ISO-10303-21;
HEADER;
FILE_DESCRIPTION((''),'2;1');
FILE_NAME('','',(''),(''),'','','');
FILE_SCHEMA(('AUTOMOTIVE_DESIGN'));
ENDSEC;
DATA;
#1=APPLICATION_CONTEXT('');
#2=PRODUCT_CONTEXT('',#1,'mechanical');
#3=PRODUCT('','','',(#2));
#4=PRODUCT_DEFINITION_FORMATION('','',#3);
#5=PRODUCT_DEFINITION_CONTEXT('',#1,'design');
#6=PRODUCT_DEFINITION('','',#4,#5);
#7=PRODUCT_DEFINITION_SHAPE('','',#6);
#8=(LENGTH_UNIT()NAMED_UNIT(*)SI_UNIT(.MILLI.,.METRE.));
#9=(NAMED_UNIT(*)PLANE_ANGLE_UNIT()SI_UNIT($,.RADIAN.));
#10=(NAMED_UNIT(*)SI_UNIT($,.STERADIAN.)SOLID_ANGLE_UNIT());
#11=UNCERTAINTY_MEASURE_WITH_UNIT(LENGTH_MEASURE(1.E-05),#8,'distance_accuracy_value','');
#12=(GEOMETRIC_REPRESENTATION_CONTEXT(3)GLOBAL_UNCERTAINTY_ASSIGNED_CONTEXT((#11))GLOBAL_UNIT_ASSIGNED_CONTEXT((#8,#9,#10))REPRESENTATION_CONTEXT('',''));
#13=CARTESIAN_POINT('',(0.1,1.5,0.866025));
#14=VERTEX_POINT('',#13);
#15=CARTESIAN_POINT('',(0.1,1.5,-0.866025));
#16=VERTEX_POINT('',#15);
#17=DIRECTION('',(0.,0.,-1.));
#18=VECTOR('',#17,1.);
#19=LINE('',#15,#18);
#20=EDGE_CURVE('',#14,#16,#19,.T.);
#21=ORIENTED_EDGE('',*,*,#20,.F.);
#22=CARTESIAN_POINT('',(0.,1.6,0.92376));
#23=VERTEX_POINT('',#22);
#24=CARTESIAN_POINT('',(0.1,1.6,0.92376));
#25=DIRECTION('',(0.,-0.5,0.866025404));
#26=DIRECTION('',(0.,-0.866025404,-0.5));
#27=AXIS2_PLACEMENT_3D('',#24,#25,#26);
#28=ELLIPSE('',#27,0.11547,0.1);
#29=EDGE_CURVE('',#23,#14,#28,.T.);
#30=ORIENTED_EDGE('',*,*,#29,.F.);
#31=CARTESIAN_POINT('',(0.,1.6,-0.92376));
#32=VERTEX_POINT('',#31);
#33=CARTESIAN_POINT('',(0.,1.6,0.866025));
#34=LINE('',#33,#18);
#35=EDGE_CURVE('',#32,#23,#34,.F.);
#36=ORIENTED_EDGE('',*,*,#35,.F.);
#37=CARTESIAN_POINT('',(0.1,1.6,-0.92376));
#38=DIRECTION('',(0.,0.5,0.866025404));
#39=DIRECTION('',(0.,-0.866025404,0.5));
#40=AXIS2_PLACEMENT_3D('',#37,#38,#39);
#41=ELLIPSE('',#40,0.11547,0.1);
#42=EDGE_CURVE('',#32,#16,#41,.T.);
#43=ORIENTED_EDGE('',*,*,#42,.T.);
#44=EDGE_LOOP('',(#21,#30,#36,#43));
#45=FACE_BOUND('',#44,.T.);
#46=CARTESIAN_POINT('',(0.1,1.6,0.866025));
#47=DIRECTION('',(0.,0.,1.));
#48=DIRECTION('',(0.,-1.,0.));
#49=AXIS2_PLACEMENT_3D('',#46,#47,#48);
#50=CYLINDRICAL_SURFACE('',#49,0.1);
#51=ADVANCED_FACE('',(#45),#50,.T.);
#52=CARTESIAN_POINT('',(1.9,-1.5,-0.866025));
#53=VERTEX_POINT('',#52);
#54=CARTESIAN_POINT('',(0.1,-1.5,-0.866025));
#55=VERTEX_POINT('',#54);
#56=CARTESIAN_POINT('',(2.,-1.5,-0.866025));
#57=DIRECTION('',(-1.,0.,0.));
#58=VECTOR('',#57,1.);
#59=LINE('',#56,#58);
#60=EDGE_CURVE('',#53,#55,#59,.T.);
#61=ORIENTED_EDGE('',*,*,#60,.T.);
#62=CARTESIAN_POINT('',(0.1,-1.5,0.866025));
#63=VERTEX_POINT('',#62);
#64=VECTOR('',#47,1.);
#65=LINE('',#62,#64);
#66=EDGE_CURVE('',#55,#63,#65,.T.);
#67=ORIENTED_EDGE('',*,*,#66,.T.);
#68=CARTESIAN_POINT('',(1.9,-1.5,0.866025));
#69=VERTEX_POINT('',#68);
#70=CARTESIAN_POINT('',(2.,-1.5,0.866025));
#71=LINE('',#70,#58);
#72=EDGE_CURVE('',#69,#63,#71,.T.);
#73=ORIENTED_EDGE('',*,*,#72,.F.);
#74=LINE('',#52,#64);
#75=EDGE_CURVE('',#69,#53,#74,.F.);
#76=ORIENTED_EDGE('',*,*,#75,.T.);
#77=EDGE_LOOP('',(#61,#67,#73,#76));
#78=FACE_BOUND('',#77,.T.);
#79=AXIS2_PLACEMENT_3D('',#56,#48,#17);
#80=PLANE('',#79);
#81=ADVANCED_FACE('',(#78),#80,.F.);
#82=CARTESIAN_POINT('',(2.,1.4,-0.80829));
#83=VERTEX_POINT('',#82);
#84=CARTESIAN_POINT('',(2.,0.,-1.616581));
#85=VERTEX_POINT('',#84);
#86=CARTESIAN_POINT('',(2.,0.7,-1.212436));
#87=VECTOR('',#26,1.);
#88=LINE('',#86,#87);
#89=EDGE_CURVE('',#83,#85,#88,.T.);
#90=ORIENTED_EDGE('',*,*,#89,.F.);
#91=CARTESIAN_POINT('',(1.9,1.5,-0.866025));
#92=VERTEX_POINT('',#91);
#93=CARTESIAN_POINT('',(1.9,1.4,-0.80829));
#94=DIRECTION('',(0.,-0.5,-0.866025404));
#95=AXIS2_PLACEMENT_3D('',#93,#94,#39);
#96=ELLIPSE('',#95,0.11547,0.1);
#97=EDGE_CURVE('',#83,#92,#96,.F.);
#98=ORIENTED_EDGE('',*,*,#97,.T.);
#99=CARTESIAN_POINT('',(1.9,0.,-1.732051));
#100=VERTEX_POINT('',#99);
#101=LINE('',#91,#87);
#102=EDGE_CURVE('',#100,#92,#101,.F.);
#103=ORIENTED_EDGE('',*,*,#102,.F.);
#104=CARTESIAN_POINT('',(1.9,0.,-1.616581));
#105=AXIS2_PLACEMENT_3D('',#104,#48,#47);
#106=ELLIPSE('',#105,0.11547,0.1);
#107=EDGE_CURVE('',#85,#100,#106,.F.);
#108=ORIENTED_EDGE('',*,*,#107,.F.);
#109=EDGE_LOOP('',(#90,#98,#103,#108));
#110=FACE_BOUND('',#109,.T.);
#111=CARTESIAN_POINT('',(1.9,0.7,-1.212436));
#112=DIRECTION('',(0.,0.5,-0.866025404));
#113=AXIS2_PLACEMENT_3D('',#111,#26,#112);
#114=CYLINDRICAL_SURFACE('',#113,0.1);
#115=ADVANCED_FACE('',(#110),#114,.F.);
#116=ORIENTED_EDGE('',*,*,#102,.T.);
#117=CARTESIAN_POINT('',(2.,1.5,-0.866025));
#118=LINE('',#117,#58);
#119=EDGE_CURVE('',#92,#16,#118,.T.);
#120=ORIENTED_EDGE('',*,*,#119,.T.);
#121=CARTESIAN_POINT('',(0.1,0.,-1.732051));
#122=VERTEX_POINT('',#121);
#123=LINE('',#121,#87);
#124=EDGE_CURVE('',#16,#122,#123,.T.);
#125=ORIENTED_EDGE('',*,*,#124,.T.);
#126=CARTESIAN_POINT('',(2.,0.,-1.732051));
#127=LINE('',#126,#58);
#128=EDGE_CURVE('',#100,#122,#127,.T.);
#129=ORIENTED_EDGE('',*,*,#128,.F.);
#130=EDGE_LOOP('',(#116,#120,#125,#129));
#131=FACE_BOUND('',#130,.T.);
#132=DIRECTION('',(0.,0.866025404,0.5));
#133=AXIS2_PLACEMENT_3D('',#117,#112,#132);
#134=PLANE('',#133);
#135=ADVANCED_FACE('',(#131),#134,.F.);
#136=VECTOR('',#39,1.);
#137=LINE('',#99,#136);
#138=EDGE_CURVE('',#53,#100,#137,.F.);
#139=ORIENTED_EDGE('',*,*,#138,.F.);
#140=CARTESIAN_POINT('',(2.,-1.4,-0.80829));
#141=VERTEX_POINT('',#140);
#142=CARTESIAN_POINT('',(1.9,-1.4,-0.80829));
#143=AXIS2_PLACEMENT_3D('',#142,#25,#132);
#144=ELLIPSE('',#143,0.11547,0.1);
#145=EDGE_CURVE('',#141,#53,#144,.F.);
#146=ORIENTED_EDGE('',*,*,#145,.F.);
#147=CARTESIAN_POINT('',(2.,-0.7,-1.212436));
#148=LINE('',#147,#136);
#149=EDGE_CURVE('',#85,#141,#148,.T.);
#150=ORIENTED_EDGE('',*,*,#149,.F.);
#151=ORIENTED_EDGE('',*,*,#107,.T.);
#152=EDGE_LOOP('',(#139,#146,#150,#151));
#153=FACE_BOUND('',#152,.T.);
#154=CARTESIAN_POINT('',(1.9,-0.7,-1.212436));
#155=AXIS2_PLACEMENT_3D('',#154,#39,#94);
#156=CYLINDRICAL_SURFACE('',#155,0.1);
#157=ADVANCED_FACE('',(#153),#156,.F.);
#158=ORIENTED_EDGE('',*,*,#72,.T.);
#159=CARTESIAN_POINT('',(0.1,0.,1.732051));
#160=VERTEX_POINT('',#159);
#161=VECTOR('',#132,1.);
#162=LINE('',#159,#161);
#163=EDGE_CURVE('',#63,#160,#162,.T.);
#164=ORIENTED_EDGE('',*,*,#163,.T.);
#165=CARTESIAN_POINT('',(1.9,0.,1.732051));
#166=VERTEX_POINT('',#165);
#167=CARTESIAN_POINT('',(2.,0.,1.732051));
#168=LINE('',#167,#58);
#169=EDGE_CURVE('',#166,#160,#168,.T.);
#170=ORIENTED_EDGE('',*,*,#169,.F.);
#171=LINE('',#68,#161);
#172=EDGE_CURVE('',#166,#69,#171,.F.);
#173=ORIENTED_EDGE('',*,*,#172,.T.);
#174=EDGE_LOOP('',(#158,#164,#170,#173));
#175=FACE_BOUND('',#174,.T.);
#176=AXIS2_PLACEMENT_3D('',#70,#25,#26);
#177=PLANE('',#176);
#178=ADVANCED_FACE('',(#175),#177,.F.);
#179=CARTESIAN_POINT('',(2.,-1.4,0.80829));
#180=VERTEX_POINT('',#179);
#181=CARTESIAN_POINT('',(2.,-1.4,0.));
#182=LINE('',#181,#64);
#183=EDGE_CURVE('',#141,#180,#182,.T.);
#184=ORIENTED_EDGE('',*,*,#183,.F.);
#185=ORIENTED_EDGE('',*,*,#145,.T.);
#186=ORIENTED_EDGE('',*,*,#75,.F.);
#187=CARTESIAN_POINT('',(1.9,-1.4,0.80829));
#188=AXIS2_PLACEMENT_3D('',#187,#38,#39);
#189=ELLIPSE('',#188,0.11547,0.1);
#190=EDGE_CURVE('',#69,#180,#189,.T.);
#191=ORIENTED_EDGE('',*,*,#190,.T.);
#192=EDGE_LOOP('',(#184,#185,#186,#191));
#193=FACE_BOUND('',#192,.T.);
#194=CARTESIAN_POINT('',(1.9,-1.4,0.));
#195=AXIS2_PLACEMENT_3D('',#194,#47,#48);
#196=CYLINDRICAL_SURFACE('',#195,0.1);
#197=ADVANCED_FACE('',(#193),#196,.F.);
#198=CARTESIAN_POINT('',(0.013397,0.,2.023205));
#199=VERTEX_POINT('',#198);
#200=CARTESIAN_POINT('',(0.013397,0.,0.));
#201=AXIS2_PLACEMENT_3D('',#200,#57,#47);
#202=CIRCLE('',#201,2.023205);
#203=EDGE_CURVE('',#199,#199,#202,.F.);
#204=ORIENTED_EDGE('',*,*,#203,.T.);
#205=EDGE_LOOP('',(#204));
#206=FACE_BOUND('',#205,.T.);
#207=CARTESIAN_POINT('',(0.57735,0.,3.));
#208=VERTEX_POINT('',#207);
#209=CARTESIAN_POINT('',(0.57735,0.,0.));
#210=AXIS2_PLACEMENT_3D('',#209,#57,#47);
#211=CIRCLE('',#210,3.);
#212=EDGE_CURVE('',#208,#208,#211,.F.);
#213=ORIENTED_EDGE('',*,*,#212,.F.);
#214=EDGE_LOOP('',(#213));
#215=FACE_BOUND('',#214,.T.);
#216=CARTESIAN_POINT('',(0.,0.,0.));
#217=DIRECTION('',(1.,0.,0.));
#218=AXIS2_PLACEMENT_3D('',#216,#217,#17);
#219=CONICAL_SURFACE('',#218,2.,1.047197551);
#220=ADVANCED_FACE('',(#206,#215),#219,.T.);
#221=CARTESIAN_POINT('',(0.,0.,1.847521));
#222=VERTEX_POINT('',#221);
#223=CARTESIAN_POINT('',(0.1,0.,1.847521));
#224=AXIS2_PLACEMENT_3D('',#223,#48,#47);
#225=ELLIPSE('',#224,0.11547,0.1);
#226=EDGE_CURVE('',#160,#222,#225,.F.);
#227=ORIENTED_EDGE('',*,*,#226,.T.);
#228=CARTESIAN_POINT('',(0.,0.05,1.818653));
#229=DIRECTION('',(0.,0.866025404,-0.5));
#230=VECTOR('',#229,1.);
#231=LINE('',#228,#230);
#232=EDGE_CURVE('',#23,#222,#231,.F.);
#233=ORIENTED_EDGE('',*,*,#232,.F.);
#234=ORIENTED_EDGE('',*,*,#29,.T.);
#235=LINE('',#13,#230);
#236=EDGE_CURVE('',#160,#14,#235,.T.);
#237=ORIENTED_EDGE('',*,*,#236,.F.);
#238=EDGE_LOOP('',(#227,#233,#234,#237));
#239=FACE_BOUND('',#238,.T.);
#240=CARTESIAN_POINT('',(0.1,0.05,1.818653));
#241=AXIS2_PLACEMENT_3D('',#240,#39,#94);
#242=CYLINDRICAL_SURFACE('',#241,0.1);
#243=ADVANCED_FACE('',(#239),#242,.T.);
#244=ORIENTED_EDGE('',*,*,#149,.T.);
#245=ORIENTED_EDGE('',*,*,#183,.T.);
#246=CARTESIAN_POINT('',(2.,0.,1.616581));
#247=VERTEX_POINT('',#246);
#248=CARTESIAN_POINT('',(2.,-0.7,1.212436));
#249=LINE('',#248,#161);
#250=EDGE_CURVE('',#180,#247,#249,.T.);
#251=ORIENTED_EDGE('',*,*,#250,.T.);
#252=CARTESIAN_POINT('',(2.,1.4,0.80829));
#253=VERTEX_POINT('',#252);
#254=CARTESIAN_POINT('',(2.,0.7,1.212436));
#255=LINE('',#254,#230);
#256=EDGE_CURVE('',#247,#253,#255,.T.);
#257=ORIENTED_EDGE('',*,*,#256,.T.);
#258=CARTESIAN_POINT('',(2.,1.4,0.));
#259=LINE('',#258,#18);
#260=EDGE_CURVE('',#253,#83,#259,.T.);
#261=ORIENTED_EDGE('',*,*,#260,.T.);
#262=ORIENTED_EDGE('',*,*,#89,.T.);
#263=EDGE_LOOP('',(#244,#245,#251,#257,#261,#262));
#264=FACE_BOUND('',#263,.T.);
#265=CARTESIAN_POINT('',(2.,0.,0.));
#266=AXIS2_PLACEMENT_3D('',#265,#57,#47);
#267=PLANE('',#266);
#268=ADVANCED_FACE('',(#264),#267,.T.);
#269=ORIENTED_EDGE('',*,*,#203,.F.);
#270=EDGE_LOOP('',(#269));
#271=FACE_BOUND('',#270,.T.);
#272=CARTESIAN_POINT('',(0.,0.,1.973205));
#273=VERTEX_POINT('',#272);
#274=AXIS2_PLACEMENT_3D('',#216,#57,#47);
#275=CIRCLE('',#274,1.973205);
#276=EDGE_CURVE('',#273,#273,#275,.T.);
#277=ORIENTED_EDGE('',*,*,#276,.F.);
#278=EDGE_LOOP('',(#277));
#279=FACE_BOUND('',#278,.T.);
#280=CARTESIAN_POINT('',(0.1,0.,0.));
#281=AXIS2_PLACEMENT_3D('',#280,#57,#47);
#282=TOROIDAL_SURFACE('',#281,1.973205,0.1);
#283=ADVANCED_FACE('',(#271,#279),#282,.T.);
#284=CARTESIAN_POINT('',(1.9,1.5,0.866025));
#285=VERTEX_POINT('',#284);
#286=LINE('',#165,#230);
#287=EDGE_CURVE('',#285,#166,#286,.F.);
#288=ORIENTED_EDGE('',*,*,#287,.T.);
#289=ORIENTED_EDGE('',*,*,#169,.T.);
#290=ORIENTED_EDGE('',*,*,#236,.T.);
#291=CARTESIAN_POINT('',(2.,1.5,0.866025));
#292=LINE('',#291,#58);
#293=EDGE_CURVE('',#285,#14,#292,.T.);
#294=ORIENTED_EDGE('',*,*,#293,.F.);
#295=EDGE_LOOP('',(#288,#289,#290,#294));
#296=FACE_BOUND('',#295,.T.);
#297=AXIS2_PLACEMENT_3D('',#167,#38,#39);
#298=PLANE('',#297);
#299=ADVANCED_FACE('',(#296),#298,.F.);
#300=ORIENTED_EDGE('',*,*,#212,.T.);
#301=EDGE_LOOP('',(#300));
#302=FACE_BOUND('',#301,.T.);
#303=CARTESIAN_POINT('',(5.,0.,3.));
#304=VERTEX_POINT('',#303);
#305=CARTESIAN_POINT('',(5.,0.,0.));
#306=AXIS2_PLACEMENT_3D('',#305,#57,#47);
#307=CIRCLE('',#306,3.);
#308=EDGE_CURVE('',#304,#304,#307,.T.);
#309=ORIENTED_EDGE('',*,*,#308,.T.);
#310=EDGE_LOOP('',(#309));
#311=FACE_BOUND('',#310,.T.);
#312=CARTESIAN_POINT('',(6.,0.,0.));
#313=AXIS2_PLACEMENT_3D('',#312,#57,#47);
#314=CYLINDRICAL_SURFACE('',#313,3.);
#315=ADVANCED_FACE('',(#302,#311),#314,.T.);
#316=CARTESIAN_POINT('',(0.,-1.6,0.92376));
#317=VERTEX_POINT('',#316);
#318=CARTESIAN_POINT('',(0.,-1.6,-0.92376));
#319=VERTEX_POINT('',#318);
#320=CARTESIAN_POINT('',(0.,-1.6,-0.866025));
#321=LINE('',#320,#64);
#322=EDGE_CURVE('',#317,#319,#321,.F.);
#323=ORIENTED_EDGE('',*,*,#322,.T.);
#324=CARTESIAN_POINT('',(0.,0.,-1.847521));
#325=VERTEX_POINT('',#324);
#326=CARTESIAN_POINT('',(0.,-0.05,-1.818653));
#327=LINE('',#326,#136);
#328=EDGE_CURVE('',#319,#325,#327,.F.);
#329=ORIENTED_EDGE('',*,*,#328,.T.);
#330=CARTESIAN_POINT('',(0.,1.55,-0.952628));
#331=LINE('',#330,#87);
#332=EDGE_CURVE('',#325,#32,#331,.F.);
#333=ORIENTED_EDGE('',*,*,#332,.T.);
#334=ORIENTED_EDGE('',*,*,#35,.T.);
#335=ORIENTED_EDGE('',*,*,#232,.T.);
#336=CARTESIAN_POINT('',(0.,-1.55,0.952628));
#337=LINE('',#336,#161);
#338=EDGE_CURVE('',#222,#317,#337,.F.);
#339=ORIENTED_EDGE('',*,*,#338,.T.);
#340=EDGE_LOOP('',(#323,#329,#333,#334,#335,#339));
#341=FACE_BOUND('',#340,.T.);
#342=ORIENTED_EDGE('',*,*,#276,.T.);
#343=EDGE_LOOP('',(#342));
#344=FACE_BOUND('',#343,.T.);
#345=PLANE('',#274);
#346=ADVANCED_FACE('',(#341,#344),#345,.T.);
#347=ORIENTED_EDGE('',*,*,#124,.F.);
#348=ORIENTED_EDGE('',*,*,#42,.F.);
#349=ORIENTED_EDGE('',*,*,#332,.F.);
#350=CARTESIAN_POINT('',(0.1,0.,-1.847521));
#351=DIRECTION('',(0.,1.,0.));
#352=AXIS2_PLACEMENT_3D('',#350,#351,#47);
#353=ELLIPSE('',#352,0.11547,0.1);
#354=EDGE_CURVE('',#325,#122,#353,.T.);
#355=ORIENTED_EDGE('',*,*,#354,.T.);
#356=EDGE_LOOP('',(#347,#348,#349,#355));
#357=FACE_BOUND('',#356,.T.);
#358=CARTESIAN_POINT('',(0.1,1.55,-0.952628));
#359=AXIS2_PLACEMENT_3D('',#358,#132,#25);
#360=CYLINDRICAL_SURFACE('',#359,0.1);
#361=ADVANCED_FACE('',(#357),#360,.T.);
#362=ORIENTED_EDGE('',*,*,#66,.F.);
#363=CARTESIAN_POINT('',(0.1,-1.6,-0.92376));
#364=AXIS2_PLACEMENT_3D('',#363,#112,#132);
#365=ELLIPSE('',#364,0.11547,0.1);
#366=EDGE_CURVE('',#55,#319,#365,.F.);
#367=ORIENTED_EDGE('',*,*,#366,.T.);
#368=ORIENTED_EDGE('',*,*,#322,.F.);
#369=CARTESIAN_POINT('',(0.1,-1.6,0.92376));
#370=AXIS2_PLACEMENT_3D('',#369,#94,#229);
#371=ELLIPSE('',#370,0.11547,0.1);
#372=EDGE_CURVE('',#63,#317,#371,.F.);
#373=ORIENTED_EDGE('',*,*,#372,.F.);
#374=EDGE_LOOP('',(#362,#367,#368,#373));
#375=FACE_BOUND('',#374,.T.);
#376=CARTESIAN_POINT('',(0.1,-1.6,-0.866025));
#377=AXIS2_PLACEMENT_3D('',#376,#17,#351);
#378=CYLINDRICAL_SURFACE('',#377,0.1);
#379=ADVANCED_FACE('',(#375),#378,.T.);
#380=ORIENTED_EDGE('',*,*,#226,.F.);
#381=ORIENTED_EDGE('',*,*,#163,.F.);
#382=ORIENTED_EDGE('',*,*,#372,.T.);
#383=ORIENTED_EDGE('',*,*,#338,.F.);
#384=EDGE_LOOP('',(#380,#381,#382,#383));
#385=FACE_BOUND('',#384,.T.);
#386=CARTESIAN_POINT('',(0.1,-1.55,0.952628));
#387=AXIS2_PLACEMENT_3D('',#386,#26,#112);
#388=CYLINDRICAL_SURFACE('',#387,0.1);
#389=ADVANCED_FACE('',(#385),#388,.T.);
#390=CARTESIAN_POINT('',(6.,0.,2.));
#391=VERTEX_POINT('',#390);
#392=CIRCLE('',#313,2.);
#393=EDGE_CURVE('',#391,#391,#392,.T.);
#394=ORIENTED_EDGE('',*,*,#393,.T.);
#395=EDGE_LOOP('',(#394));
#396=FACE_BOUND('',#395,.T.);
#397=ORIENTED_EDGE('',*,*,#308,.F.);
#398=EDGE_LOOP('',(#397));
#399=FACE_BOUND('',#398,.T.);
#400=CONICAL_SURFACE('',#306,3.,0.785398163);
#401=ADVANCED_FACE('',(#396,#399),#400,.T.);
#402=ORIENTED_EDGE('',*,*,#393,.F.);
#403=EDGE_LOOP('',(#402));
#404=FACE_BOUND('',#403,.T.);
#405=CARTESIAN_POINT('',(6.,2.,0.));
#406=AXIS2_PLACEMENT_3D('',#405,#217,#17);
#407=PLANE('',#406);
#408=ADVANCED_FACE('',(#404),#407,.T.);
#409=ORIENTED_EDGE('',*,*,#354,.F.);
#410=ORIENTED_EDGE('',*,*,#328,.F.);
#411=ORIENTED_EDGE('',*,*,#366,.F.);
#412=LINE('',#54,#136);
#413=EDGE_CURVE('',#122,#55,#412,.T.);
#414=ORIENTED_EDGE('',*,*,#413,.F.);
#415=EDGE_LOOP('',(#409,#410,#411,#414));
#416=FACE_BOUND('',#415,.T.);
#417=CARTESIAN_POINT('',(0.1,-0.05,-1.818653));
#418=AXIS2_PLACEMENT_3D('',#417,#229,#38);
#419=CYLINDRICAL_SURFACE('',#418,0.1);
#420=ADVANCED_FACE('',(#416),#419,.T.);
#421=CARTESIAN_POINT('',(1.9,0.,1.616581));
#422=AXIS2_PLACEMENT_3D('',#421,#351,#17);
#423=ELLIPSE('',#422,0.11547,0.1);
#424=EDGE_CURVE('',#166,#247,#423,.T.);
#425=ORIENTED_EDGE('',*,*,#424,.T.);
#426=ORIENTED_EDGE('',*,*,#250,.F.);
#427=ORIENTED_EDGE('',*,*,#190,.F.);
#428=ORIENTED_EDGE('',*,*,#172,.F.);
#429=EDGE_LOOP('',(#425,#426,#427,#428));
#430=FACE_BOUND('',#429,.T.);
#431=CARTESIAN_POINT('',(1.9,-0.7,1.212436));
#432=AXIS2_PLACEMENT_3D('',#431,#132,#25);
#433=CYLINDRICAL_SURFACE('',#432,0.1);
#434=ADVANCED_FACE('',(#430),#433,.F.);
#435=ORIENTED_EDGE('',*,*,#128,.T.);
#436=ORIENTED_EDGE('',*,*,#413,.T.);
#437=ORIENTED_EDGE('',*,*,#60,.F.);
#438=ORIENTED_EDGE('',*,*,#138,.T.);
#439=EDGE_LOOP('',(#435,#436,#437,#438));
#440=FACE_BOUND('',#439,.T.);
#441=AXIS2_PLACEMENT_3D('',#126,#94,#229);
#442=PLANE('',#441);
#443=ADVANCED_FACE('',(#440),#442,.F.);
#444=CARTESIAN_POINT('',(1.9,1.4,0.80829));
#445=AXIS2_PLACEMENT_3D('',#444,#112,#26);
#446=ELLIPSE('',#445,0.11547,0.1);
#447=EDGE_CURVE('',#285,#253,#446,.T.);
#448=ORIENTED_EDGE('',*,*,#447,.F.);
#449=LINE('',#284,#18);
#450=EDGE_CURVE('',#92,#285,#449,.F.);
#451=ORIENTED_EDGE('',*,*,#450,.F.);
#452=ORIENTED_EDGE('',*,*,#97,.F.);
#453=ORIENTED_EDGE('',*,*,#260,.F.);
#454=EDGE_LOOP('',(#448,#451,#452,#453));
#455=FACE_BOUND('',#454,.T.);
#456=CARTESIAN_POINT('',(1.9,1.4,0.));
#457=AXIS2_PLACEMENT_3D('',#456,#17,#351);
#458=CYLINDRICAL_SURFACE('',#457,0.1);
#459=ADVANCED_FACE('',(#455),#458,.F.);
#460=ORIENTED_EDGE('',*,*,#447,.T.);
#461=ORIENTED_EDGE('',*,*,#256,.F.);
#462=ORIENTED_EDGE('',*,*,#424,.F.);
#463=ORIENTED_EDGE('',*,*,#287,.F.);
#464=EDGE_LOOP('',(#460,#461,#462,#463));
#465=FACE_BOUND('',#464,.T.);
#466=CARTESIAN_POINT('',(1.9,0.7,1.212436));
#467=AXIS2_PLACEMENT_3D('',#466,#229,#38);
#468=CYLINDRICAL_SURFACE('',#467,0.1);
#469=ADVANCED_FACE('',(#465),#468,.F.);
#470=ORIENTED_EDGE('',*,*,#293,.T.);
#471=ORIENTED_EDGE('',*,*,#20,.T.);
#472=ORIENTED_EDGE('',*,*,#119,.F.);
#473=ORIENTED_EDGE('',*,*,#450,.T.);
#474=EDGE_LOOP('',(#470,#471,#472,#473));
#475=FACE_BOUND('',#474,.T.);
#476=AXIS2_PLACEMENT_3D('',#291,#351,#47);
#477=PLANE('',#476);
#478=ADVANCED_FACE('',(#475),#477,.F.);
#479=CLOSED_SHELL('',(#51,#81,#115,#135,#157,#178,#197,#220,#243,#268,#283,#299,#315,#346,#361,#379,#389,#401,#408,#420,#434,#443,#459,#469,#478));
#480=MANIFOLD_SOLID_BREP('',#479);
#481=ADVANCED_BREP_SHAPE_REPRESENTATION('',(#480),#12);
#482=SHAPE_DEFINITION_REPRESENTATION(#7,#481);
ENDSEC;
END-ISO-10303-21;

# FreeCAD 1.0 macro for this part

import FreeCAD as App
import Part
import Sketcher
from FreeCAD import Vector
Q = App.Units.Quantity


def edges_at(feature, points):
    """Names of the edges that pass closest to the given points."""
    edges = feature.Shape.Edges
    near = lambda p: min(range(len(edges)), key=lambda i: edges[i].distToShape(Part.Vertex(*p))[0])
    return sorted({f"Edge{near(p) + 1}" for p in points})


def add_polygon(sketch, points):
    """Adds a closed chain of lines whose ends are joined by coincident constraints."""
    first, n = sketch.GeometryCount, len(points)
    for a, b in zip(points, points[1:] + points[:1]):
        sketch.addGeometry(Part.LineSegment(App.Vector(*a, 0), App.Vector(*b, 0)), False)
    for i in range(n):
        sketch.addConstraint(Sketcher.Constraint("Coincident", first + i, 2, first + (i + 1) % n, 1))

doc = App.newDocument("Part")
body = doc.addObject("PartDesign::Body", "Body")

# Sketch on XY plane
sketch1 = body.newObject("Sketcher::SketchObject", "Sketch")
sketch1.AttachmentSupport = (doc.getObject("XY_Plane"), [""])
sketch1.MapMode = "FlatFace"
add_polygon(sketch1, [(6, 2), (6, 0), (0, 0), (0, 3), (5, 3)])  # lines 0-4
sketch1.addConstraint(Sketcher.Constraint("Vertical", 0))
sketch1.addConstraint(Sketcher.Constraint("Horizontal", 1))
sketch1.addConstraint(Sketcher.Constraint("Vertical", 2))
sketch1.addConstraint(Sketcher.Constraint("Horizontal", 3))
sketch1.addConstraint(Sketcher.Constraint("Coincident", 1, 2, -1, 1))
sketch1.addConstraint(Sketcher.Constraint("DistanceX", 1, 2, 1, 1, Q("6 mm")))
sketch1.addConstraint(Sketcher.Constraint("DistanceX", 3, 1, 3, 2, Q("5 mm")))
sketch1.addConstraint(Sketcher.Constraint("DistanceY", 0, 2, 0, 1, Q("2 mm")))
sketch1.addConstraint(Sketcher.Constraint("DistanceY", 2, 1, 2, 2, Q("3 mm")))
revolution = body.newObject("PartDesign::Revolution", "Revolution")
revolution.Profile = sketch1
revolution.ReferenceAxis = (sketch1, ["H_Axis"])
revolution.Angle = 360

# Sketch on YZ plane
sketch2 = body.newObject("Sketcher::SketchObject", "Sketch001")
sketch2.AttachmentSupport = (doc.getObject("YZ_Plane"), [""])
sketch2.MapMode = "FlatFace"
add_polygon(sketch2, [(0, 1.7), (1.5, 0.9), (1.5, -0.9), (0, -1.7), (-1.5, -0.9), (-1.5, 0.9)])  # lines 0-5
sketch2.addConstraint(Sketcher.Constraint("Vertical", 1))
sketch2.addConstraint(Sketcher.Constraint("Vertical", 4))
sketch2.addConstraint(Sketcher.Constraint("Symmetric", 0, 2, 3, 2, -1, 1))
sketch2.addConstraint(Sketcher.Constraint("Symmetric", 2, 2, 5, 2, -1, 1))
sketch2.addConstraint(Sketcher.Constraint("PointOnObject", 2, 2, -2))
sketch2.addConstraint(Sketcher.Constraint("Parallel", 2, 5))
sketch2.addConstraint(Sketcher.Constraint("Horizontal", 1, 2, 3, 2))
sketch2.addConstraint(Sketcher.Constraint("Angle", 0, Q("-30 deg")))
sketch2.addConstraint(Sketcher.Constraint("DistanceX", 3, 2, 1, 2, Q("3 mm")))
sketch2.addConstraint(Sketcher.Constraint("DistanceY", 1, 2, 1, 1, Q("1.732051 mm")))
pocket1 = body.newObject("PartDesign::Pocket", "Pocket")
pocket1.Profile = sketch2
pocket1.Length = 2
pocket1.Reversed = True
doc.recompute()

chamfer = body.newObject("PartDesign::Chamfer", "Chamfer")
chamfer.Base = (pocket1, edges_at(pocket1, [(0, -3, 0)]))
chamfer.ChamferType = "Two distances"
chamfer.Size = 1
chamfer.Size2 = 0.57735
chamfer.FlipDirection = True
doc.recompute()

fillet = body.newObject("PartDesign::Fillet", "Fillet")
fillet.Base = (chamfer, edges_at(chamfer, [
    (2, -0.75, 1.299),
    (2, -1.5, 0),
    (2, -0.75, -1.299),
    (2, 0.75, -1.299),
    (2, 1.5, 0),
    (2, 0.75, 1.299),
    (0, -0.75, 1.299),
    (0, 0.75, 1.299),
    (0, 1.5, 0),
    (0, 0.75, -1.299),
    (0, -0.75, -1.299),
    (0, -1.5, 0),
    (0, -2, 0),
]))
fillet.Radius = 0.1

doc.recompute()
